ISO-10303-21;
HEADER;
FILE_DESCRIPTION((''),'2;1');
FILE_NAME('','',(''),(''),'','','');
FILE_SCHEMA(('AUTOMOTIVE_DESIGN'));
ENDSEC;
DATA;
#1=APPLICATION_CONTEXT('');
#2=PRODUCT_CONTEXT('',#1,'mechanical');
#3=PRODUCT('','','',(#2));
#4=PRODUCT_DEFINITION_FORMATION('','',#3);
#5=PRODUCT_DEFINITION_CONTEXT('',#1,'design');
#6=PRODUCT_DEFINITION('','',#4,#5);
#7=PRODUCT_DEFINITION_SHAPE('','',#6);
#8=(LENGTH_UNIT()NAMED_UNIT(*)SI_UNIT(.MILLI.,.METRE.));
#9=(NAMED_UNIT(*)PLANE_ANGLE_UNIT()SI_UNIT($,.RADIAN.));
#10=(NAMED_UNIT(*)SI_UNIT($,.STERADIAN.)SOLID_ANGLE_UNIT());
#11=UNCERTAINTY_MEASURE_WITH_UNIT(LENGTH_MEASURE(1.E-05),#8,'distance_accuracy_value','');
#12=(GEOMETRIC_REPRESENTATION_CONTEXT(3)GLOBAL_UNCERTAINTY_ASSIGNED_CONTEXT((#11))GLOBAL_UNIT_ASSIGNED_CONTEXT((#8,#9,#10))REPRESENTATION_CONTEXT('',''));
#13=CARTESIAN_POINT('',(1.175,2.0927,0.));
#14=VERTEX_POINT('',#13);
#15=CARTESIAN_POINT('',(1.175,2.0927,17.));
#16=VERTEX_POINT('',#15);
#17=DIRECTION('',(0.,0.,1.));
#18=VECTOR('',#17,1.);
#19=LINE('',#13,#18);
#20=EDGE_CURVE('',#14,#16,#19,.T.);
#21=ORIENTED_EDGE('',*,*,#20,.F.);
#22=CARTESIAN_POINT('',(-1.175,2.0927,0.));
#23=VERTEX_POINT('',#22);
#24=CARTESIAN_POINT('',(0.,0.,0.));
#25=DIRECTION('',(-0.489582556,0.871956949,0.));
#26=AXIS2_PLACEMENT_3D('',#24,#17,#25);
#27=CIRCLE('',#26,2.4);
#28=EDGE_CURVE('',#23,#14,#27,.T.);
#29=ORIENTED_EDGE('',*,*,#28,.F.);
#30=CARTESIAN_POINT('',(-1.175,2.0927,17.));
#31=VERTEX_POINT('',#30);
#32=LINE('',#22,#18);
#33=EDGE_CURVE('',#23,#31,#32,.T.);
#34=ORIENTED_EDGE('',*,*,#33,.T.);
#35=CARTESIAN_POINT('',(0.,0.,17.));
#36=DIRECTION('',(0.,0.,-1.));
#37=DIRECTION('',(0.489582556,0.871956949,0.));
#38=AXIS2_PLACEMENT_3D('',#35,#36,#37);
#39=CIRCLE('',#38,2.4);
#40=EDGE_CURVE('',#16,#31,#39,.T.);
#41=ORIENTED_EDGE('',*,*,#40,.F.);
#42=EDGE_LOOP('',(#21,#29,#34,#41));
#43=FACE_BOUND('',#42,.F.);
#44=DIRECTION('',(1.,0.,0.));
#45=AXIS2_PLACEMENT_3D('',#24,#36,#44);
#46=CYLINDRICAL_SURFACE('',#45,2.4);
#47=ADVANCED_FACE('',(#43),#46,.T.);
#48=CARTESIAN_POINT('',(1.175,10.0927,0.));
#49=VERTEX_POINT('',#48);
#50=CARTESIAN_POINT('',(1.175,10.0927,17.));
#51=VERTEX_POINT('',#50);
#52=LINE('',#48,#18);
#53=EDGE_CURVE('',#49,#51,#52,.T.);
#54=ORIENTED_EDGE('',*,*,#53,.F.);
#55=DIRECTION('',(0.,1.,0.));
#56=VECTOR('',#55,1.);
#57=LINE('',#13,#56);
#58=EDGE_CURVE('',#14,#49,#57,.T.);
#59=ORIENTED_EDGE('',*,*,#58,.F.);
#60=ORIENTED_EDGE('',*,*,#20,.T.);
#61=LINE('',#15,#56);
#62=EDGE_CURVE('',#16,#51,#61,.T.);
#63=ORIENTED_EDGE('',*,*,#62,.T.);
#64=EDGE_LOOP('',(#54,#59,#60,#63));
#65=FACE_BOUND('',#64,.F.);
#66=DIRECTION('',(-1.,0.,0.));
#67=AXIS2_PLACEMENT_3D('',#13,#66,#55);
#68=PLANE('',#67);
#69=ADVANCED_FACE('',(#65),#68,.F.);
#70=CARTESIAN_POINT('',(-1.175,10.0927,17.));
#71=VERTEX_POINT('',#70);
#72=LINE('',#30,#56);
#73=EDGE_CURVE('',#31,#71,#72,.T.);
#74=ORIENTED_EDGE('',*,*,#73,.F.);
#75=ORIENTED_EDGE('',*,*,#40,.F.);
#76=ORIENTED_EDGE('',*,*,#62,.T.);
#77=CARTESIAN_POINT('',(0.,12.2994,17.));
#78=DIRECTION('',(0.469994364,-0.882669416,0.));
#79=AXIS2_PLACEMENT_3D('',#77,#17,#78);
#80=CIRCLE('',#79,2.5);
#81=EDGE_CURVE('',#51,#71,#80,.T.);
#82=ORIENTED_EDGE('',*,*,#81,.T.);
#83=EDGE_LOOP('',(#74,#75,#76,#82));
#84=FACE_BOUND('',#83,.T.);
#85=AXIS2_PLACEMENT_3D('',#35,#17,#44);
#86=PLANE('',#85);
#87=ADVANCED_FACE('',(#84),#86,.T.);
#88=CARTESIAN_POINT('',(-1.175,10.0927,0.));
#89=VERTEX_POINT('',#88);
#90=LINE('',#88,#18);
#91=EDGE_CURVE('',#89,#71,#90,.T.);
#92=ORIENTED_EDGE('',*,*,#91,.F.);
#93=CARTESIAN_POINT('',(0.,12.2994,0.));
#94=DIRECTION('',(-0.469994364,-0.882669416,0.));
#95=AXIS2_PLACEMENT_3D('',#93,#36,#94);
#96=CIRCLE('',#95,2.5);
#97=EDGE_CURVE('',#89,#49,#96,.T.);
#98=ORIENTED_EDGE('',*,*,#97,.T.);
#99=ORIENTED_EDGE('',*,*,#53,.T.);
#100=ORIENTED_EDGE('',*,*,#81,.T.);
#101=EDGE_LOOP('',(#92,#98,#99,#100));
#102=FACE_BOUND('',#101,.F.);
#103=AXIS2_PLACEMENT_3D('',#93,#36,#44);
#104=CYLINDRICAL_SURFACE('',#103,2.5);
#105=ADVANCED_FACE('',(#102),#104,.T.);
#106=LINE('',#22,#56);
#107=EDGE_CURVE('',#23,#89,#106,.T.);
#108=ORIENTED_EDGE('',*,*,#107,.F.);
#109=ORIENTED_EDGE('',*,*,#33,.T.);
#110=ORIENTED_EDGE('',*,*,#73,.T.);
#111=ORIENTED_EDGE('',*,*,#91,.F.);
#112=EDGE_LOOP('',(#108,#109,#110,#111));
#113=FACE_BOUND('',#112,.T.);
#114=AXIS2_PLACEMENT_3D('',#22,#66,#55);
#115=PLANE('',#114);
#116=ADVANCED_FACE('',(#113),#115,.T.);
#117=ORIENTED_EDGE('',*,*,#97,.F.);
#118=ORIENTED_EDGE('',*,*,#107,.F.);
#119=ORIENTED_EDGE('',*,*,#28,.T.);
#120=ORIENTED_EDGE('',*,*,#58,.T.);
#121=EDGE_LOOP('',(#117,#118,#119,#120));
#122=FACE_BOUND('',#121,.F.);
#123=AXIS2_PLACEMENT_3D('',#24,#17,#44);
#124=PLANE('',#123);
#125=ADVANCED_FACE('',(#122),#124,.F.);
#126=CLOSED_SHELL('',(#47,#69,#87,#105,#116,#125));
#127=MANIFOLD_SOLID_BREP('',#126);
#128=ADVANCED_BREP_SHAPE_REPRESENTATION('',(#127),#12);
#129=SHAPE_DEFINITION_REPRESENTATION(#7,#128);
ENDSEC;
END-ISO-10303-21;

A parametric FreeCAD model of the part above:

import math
import FreeCAD as App
import Part
import Sketcher

doc = App.newDocument("Part")
body = doc.addObject("PartDesign::Body", "Body")

# Sketch on XY plane
sketch1 = body.newObject("Sketcher::SketchObject", "Sketch")
sketch1.AttachmentSupport = (doc.getObject("XY_Plane"), [""])
sketch1.MapMode = "FlatFace"
sketch1.addGeometry([
    Part.ArcOfCircle(Part.Circle(App.Vector(0, 0, 0), App.Vector(0, 0, 1), 2.4), math.radians(119), math.radians(421)),
    Part.LineSegment(App.Vector(1.2, 2.1, 0), App.Vector(1.2, 10.1, 0)),
    Part.ArcOfCircle(Part.Circle(App.Vector(0, 12.3, 0), App.Vector(0, 0, 1), 2.5), math.radians(-62), math.radians(242)),
    Part.LineSegment(App.Vector(-1.2, 10.1, 0), App.Vector(-1.2, 2.1, 0)),
], False)
sketch1.addConstraint([
    Sketcher.Constraint("Coincident", 0, 2, 1, 1),
    Sketcher.Constraint("Coincident", 1, 2, 2, 1),
    Sketcher.Constraint("Coincident", 2, 2, 3, 1),
    Sketcher.Constraint("Coincident", 3, 2, 0, 1),
    Sketcher.Constraint("Vertical", 1),
    Sketcher.Constraint("Vertical", 3),
    Sketcher.Constraint("Coincident", 0, 3, -1, 1),
    Sketcher.Constraint("Symmetric", 1, 2, 2, 2, -2),
    Sketcher.Constraint("Radius", 0, 2.4),
    Sketcher.Constraint("Radius", 2, 2.5),
    Sketcher.Constraint("DistanceY", 1, 1, 1, 2, 8.0),
    Sketcher.Constraint("DistanceX", 2, 2, 1, 2, 2.35),
])
pad1 = body.newObject("PartDesign::Pad", "Pad")
pad1.Profile = sketch1
pad1.Length = 17

doc.recompute()
